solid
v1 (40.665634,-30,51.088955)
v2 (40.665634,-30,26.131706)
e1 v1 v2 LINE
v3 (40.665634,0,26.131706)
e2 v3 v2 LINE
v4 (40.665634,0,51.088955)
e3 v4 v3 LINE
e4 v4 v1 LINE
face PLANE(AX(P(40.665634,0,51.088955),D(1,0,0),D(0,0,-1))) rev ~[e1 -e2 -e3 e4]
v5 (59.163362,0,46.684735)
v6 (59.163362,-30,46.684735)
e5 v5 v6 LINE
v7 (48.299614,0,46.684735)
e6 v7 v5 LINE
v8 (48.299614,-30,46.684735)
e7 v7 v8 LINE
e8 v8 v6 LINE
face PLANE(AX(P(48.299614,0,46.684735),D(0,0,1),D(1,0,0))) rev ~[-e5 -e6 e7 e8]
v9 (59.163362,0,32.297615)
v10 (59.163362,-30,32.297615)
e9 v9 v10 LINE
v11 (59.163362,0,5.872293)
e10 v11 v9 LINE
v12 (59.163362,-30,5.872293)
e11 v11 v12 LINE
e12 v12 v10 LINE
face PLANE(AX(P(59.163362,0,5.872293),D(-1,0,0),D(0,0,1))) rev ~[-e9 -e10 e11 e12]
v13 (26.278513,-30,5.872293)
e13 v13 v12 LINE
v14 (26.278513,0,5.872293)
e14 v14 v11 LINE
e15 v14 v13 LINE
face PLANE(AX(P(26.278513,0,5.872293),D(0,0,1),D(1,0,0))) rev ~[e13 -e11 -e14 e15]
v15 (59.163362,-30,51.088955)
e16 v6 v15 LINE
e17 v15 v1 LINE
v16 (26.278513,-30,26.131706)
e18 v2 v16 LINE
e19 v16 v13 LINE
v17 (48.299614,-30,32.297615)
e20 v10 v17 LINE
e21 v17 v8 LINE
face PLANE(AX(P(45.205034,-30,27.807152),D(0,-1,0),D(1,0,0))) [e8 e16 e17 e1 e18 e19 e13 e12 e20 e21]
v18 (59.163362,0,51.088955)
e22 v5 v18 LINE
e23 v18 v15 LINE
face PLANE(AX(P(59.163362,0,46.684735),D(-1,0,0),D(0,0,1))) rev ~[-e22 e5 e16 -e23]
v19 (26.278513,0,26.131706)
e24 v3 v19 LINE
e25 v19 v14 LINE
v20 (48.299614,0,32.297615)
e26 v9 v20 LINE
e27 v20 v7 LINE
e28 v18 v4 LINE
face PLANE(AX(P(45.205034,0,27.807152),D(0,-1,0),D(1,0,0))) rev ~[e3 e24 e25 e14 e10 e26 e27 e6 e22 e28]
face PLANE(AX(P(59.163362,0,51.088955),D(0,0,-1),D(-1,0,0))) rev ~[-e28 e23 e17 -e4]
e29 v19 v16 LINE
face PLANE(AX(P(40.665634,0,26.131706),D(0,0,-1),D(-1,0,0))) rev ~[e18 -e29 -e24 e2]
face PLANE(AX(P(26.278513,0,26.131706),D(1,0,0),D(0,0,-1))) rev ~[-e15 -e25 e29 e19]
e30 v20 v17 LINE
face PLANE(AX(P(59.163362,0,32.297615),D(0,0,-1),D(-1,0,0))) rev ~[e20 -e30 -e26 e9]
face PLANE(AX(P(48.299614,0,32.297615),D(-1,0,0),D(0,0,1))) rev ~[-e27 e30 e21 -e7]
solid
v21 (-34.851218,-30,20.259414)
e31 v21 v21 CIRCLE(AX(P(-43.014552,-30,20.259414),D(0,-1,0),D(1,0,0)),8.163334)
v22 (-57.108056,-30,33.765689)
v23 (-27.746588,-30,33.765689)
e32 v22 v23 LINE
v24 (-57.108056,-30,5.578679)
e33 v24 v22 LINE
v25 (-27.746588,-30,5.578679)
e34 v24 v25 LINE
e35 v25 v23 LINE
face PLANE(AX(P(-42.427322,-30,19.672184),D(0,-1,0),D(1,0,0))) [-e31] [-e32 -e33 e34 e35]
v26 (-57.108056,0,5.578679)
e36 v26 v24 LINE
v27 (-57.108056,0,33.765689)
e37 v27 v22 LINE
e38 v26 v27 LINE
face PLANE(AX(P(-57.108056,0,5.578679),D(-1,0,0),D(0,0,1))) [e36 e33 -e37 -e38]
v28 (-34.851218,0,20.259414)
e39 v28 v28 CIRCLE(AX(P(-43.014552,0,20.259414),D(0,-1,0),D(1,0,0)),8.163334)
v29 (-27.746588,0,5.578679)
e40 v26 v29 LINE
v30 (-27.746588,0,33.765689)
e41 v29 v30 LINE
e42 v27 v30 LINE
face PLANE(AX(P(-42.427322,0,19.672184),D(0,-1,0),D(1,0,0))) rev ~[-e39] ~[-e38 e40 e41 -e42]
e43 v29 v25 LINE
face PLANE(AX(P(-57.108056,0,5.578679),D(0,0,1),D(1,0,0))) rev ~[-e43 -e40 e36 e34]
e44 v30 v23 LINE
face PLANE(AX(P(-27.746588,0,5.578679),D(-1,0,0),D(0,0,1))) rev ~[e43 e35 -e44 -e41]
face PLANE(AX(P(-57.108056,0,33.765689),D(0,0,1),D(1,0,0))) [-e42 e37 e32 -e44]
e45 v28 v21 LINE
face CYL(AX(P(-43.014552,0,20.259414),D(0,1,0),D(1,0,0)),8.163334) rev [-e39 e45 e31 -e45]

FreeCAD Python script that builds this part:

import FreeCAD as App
import Part
import Sketcher
from FreeCAD import Vector
Q = App.Units.Quantity

doc = App.newDocument("Part")
body = doc.addObject("PartDesign::Body", "Body")
body.AllowCompound = True

sketch1 = body.newObject("Sketcher::SketchObject", "Sketch")
sketch1.AttachmentSupport = (doc.getObject("XZ_Plane"), [""])
sketch1.MapMode = "FlatFace"
sketch1.addGeometry(Part.LineSegment(Vector(-57.1, 33.8, 0), Vector(-57.1, 5.6, 0)), False)
sketch1.addGeometry(Part.LineSegment(Vector(-57.1, 5.6, 0), Vector(-27.7, 5.6, 0)), False)
sketch1.addGeometry(Part.LineSegment(Vector(-27.7, 5.6, 0), Vector(-27.7, 33.8, 0)), False)
sketch1.addGeometry(Part.LineSegment(Vector(-27.7, 33.8, 0), Vector(-57.1, 33.8, 0)), False)
sketch1.addGeometry(Part.Circle(Vector(-43, 20.3, 0), Vector(0, 0, 1), 8.2), False)
sketch1.addGeometry(Part.LineSegment(Vector(40.7, 26.1, 0), Vector(26.3, 26.1, 0)), False)
sketch1.addGeometry(Part.LineSegment(Vector(26.3, 26.1, 0), Vector(26.3, 5.9, 0)), False)
sketch1.addGeometry(Part.LineSegment(Vector(26.3, 5.9, 0), Vector(59.2, 5.9, 0)), False)
sketch1.addGeometry(Part.LineSegment(Vector(59.2, 5.9, 0), Vector(59.2, 32.3, 0)), False)
sketch1.addGeometry(Part.LineSegment(Vector(59.2, 32.3, 0), Vector(48.3, 32.3, 0)), False)
sketch1.addGeometry(Part.LineSegment(Vector(48.3, 32.3, 0), Vector(48.3, 46.7, 0)), False)
sketch1.addGeometry(Part.LineSegment(Vector(48.3, 46.7, 0), Vector(59.2, 46.7, 0)), False)
sketch1.addGeometry(Part.LineSegment(Vector(59.2, 46.7, 0), Vector(59.2, 51.1, 0)), False)
sketch1.addGeometry(Part.LineSegment(Vector(59.2, 51.1, 0), Vector(40.7, 51.1, 0)), False)
sketch1.addGeometry(Part.LineSegment(Vector(40.7, 51.1, 0), Vector(40.7, 26.1, 0)), False)
sketch1.addConstraint(Sketcher.Constraint("Coincident", 0, 2, 1, 1))
sketch1.addConstraint(Sketcher.Constraint("Coincident", 1, 2, 2, 1))
sketch1.addConstraint(Sketcher.Constraint("Coincident", 2, 2, 3, 1))
sketch1.addConstraint(Sketcher.Constraint("Coincident", 3, 2, 0, 1))
sketch1.addConstraint(Sketcher.Constraint("Coincident", 5, 2, 6, 1))
sketch1.addConstraint(Sketcher.Constraint("Coincident", 6, 2, 7, 1))
sketch1.addConstraint(Sketcher.Constraint("Coincident", 7, 2, 8, 1))
sketch1.addConstraint(Sketcher.Constraint("Coincident", 8, 2, 9, 1))
sketch1.addConstraint(Sketcher.Constraint("Coincident", 9, 2, 10, 1))
sketch1.addConstraint(Sketcher.Constraint("Coincident", 10, 2, 11, 1))
sketch1.addConstraint(Sketcher.Constraint("Coincident", 11, 2, 12, 1))
sketch1.addConstraint(Sketcher.Constraint("Coincident", 12, 2, 13, 1))
sketch1.addConstraint(Sketcher.Constraint("Coincident", 13, 2, 14, 1))
sketch1.addConstraint(Sketcher.Constraint("Coincident", 14, 2, 5, 1))
sketch1.addConstraint(Sketcher.Constraint("Vertical", 0))
sketch1.addConstraint(Sketcher.Constraint("Horizontal", 1))
sketch1.addConstraint(Sketcher.Constraint("Vertical", 2))
sketch1.addConstraint(Sketcher.Constraint("Horizontal", 3))
sketch1.addConstraint(Sketcher.Constraint("Horizontal", 5))
sketch1.addConstraint(Sketcher.Constraint("Vertical", 6))
sketch1.addConstraint(Sketcher.Constraint("Horizontal", 7))
sketch1.addConstraint(Sketcher.Constraint("Vertical", 8))
sketch1.addConstraint(Sketcher.Constraint("Horizontal", 9))
sketch1.addConstraint(Sketcher.Constraint("Vertical", 10))
sketch1.addConstraint(Sketcher.Constraint("Horizontal", 11))
sketch1.addConstraint(Sketcher.Constraint("Vertical", 12))
sketch1.addConstraint(Sketcher.Constraint("Horizontal", 13))
sketch1.addConstraint(Sketcher.Constraint("Vertical", 14))
sketch1.addConstraint(Sketcher.Constraint("Vertical", 8, 2, 11, 2))
sketch1.addConstraint(Sketcher.Constraint("Equal", 5, 10))
sketch1.addConstraint(Sketcher.Constraint("Diameter", 4, Q("16.326668 mm")))
sketch1.addConstraint(Sketcher.Constraint("DistanceX", 5, 2, 5, 1, Q("14.387121 mm")))
sketch1.addConstraint(Sketcher.Constraint("DistanceX", 7, 1, 7, 2, Q("32.884849 mm")))
sketch1.addConstraint(Sketcher.Constraint("DistanceX", 9, 2, 9, 1, Q("10.863748 mm")))
sketch1.addConstraint(Sketcher.Constraint("DistanceY", 0, 2, 0, 1, Q("28.18701 mm")))
sketch1.addConstraint(Sketcher.Constraint("DistanceY", 12, 1, 12, 2, Q("4.40422 mm")))
sketch1.addConstraint(Sketcher.Constraint("DistanceY", 14, 2, 14, 1, Q("24.957249 mm")))
sketch1.addConstraint(Sketcher.Constraint("DistanceX", 2, 2, 5, 2, Q("54.025101 mm")))
sketch1.addConstraint(Sketcher.Constraint("DistanceX", 1, 1, 1, 2, Q("29.361468 mm")))
sketch1.addConstraint(Sketcher.Constraint("DistanceY", 6, 2, 6, 1, Q("20.259413 mm")))
sketch1.addConstraint(Sketcher.Constraint("DistanceY", -1, 1, 0, 2, Q("5.578679 mm")))
sketch1.addConstraint(Sketcher.Constraint("DistanceY", 6, 2, 4, 3, Q("14.387121 mm")))
sketch1.addConstraint(Sketcher.Constraint("DistanceX", 4, 3, -1, 1, Q("43.014552 mm")))
sketch1.addConstraint(Sketcher.Constraint("DistanceY", -1, 1, 4, 3, Q("20.259414 mm")))
sketch1.addConstraint(Sketcher.Constraint("DistanceX", 0, 2, -1, 1, Q("57.108056 mm")))
pad1 = body.newObject("PartDesign::Pad", "Pad")
pad1.Profile = sketch1
pad1.Length = 30

doc.recompute()
